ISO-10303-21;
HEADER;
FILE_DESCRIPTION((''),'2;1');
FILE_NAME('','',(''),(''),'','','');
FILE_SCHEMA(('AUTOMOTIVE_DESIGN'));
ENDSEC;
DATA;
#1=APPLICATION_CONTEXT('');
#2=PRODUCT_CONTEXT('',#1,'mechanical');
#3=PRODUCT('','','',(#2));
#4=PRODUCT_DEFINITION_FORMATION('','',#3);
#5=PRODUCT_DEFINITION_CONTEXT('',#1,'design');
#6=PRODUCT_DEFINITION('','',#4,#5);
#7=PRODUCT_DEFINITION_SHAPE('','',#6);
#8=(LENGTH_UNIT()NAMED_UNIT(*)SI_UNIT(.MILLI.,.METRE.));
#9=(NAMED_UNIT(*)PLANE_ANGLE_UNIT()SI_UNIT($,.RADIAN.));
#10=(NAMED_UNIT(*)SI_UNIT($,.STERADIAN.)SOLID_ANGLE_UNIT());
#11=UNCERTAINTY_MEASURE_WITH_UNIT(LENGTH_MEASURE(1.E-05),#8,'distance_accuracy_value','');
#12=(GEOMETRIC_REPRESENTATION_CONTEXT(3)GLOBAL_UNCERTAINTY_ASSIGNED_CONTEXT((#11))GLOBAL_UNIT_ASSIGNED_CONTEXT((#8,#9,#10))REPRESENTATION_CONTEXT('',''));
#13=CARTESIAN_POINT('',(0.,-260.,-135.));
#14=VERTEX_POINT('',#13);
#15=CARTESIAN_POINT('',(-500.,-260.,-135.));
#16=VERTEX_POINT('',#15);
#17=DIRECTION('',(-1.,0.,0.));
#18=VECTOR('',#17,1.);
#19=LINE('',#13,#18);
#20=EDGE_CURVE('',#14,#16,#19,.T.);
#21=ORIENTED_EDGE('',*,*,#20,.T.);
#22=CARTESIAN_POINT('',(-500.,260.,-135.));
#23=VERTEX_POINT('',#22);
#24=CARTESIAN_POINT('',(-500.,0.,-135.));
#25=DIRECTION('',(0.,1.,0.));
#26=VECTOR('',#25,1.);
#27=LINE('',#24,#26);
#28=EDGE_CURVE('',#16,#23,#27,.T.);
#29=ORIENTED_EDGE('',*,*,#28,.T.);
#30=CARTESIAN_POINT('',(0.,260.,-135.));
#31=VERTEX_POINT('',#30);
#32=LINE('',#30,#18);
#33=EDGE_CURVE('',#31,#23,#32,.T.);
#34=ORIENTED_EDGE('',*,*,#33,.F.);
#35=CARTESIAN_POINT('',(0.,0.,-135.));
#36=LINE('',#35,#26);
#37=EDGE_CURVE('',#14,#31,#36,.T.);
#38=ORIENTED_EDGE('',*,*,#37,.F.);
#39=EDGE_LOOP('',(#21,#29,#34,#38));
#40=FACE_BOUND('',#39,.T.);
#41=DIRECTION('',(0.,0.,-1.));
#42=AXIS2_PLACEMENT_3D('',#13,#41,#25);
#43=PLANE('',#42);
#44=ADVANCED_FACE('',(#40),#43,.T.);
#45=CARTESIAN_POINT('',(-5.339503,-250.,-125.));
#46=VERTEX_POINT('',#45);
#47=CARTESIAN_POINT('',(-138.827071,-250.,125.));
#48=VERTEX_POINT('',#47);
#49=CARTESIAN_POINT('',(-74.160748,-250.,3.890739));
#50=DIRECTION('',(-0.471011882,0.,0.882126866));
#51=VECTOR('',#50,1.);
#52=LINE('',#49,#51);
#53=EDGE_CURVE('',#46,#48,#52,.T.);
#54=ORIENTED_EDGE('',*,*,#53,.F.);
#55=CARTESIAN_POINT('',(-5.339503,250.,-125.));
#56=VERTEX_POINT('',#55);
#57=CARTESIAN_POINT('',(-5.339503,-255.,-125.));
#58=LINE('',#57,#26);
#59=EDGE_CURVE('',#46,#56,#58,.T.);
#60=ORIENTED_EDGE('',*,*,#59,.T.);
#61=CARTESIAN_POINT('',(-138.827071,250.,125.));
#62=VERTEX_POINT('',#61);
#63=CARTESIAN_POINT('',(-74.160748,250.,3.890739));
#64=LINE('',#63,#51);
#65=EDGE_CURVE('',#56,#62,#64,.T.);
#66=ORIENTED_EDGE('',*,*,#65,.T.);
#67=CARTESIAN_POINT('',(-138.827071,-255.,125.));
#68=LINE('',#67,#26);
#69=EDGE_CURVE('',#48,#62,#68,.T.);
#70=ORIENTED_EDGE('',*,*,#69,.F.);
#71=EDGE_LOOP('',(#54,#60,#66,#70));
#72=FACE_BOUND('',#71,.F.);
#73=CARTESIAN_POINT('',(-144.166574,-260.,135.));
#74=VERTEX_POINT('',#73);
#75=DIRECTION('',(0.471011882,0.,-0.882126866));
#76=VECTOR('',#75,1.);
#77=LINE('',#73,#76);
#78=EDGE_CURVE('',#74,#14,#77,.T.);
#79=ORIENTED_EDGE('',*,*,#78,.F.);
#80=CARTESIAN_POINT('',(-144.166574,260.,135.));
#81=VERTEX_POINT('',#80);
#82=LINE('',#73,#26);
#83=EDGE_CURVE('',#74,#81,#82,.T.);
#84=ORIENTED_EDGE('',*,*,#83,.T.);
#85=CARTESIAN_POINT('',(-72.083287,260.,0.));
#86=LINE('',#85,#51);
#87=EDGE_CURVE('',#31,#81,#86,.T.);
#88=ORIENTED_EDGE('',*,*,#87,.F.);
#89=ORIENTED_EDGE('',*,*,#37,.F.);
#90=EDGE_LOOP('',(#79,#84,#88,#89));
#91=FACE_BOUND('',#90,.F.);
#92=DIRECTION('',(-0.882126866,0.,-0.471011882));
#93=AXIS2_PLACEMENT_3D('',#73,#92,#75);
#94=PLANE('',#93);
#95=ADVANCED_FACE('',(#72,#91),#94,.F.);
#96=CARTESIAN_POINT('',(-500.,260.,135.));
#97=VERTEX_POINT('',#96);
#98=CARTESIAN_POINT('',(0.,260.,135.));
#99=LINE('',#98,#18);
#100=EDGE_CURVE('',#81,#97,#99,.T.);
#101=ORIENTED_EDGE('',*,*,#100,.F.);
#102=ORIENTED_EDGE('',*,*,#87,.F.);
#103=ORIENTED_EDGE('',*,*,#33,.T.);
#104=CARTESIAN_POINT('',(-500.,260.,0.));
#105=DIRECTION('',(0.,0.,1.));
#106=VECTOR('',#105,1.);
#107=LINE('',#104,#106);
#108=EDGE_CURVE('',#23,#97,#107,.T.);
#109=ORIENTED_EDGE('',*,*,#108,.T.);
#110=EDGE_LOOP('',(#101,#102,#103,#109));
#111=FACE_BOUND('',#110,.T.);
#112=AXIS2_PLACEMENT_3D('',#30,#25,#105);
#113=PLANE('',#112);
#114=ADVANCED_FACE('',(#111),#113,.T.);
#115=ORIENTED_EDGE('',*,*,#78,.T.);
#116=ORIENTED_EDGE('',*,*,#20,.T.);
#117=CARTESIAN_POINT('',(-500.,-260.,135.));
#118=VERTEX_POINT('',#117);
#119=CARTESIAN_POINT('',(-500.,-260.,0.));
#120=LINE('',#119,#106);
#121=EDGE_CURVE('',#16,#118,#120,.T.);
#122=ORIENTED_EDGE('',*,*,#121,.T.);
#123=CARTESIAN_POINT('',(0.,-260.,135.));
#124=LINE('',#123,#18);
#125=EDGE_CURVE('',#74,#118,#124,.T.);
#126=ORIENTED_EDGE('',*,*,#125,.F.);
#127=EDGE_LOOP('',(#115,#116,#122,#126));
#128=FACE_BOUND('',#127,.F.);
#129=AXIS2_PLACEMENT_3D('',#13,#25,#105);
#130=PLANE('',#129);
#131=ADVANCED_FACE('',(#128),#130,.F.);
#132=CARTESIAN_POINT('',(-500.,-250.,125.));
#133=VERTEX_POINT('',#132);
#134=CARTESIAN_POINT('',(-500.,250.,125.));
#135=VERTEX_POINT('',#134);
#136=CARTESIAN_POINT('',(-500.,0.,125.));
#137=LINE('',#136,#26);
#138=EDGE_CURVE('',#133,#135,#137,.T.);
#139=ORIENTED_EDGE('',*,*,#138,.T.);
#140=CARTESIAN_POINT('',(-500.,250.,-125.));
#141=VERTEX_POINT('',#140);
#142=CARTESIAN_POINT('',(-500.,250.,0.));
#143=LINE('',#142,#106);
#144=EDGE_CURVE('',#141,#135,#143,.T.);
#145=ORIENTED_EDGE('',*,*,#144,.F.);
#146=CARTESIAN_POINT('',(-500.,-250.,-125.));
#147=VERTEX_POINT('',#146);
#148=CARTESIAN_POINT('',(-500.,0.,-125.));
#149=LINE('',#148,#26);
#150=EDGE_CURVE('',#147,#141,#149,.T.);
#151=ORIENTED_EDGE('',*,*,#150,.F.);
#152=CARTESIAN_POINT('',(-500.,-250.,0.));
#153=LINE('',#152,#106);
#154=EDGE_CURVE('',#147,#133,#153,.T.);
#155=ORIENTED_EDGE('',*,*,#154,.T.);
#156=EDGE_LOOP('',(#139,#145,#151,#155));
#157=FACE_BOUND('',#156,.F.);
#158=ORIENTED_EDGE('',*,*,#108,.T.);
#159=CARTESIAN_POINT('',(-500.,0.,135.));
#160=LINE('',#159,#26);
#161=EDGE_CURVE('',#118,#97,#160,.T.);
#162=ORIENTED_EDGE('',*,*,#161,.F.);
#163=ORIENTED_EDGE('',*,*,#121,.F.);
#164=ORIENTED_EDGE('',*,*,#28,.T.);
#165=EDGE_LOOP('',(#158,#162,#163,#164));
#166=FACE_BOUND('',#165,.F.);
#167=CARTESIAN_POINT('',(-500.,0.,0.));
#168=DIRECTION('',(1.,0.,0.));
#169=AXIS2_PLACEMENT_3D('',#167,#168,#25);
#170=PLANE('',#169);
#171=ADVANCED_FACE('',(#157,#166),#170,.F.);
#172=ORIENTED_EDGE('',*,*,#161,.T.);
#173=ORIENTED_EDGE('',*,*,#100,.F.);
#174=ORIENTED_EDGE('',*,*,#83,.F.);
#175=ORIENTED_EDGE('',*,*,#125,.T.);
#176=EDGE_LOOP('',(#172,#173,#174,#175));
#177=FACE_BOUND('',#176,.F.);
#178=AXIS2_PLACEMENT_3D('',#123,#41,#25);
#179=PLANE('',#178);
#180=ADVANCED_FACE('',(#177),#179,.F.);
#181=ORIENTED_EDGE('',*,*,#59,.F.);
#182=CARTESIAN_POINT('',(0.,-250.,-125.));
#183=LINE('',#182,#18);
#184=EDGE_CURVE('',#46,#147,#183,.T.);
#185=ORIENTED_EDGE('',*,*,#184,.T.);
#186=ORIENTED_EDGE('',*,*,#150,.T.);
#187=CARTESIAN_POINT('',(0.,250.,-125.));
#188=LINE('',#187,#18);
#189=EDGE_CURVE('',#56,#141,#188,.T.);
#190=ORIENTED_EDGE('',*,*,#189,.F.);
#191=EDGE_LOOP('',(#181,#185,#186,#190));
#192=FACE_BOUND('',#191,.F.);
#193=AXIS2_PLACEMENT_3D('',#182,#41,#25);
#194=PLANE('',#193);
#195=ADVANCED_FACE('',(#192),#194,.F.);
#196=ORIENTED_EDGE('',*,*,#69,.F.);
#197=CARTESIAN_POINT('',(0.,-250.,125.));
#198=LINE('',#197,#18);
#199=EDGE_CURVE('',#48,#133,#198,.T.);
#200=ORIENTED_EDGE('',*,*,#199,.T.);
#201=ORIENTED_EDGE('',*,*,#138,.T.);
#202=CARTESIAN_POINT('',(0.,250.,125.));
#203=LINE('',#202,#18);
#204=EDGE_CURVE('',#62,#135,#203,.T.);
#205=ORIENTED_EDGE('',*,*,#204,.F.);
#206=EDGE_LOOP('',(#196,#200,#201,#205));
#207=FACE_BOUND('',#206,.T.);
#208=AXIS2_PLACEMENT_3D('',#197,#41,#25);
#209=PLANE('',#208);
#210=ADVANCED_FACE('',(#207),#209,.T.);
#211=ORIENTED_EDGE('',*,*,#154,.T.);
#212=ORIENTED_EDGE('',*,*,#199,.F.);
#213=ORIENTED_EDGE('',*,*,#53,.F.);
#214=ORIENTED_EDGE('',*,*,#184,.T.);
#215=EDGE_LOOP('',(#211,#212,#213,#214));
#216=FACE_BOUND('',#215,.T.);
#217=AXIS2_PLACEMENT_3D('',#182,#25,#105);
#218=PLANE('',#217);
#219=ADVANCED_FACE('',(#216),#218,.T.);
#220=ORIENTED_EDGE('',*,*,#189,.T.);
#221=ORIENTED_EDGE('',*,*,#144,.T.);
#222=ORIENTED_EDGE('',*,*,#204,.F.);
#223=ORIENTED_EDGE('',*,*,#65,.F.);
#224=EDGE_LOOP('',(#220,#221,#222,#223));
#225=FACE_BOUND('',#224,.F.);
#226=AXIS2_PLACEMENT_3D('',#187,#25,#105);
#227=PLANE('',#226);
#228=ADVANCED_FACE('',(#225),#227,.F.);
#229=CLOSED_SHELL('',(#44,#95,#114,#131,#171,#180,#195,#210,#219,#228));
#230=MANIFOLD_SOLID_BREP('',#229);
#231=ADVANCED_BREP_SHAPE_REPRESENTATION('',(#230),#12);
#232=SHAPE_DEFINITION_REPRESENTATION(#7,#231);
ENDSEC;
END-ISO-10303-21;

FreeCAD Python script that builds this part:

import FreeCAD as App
import Part
import Sketcher

V = App.Vector
Q = App.Units.Quantity


def add_polygon(sketch, points):
    """Adds a closed chain of lines whose ends are joined by coincident constraints."""
    first, n = sketch.GeometryCount, len(points)
    for a, b in zip(points, points[1:] + points[:1]):
        sketch.addGeometry(Part.LineSegment(App.Vector(*a, 0), App.Vector(*b, 0)), False)
    for i in range(n):
        sketch.addConstraint(Sketcher.Constraint("Coincident", first + i, 2, first + (i + 1) % n, 1))

doc = App.newDocument("Part")
body = doc.addObject("PartDesign::Body", "Body")

sketch1 = body.newObject("Sketcher::SketchObject", "Sketch")
sketch1.AttachmentSupport = (doc.getObject("YZ_Plane"), [""])
sketch1.MapMode = "FlatFace"
add_polygon(sketch1, [(-260, 135), (-260, -135), (260, -135), (260, 135)])
sketch1.addConstraint([
    Sketcher.Constraint("Vertical", 0),
    Sketcher.Constraint("Horizontal", 1),
    Sketcher.Constraint("Vertical", 2),
    Sketcher.Constraint("Horizontal", 3),
    Sketcher.Constraint("Symmetric", 0, 2, 2, 2, -1, 1),
    Sketcher.Constraint("DistanceX", 1, 1, 1, 2, Q("520 mm")),
    Sketcher.Constraint("DistanceY", 0, 2, 0, 1, Q("270 mm")),
])
pad1 = body.newObject("PartDesign::Pad", "Pad")
pad1.Profile = sketch1
pad1.Length = 500
pad1.Reversed = True

sketch2 = body.newObject("Sketcher::SketchObject", "Sketch001")
sketch2.AttachmentSupport = (doc.getObject("YZ_Plane"), [""])
sketch2.MapMode = "FlatFace"
add_polygon(sketch2, [(-250, 125), (-250, -125), (250, -125), (250, 125)])
sketch2.addConstraint([
    Sketcher.Constraint("Vertical", 0),
    Sketcher.Constraint("Horizontal", 1),
    Sketcher.Constraint("Vertical", 2),
    Sketcher.Constraint("Horizontal", 3),
    Sketcher.Constraint("Symmetric", 0, 2, 2, 2, -1, 1),
    Sketcher.Constraint("DistanceX", 1, 1, 1, 2, Q("500 mm")),
    Sketcher.Constraint("DistanceY", 0, 2, 0, 1, Q("250 mm")),
])
pocket1 = body.newObject("PartDesign::Pocket", "Pocket")
pocket1.Profile = sketch2
pocket1.Length = 500

sketch3 = body.newObject("Sketcher::SketchObject", "Sketch002")
sketch3.AttachmentSupport = (doc.getObject("XZ_Plane"), [""])
sketch3.MapMode = "FlatFace"
sketch3.AttachmentOffset = App.Placement(V(0, 0, 260), App.Rotation())
add_polygon(sketch3, [(-144, 135), (0, -135), (0, 135)])
sketch3.addConstraint([
    Sketcher.Constraint("Vertical", 1),
    Sketcher.Constraint("Horizontal", 2),
    Sketcher.Constraint("Symmetric", 0, 2, 1, 2, -1, 1),
    Sketcher.Constraint("DistanceY", 1, 1, 1, 2, Q("270 mm")),
    Sketcher.Constraint("Angle", 0, Q("-61.9 deg")),
])
pocket2 = body.newObject("PartDesign::Pocket", "Pocket001")
pocket2.Profile = sketch3
pocket2.Length = 600

doc.recompute()
